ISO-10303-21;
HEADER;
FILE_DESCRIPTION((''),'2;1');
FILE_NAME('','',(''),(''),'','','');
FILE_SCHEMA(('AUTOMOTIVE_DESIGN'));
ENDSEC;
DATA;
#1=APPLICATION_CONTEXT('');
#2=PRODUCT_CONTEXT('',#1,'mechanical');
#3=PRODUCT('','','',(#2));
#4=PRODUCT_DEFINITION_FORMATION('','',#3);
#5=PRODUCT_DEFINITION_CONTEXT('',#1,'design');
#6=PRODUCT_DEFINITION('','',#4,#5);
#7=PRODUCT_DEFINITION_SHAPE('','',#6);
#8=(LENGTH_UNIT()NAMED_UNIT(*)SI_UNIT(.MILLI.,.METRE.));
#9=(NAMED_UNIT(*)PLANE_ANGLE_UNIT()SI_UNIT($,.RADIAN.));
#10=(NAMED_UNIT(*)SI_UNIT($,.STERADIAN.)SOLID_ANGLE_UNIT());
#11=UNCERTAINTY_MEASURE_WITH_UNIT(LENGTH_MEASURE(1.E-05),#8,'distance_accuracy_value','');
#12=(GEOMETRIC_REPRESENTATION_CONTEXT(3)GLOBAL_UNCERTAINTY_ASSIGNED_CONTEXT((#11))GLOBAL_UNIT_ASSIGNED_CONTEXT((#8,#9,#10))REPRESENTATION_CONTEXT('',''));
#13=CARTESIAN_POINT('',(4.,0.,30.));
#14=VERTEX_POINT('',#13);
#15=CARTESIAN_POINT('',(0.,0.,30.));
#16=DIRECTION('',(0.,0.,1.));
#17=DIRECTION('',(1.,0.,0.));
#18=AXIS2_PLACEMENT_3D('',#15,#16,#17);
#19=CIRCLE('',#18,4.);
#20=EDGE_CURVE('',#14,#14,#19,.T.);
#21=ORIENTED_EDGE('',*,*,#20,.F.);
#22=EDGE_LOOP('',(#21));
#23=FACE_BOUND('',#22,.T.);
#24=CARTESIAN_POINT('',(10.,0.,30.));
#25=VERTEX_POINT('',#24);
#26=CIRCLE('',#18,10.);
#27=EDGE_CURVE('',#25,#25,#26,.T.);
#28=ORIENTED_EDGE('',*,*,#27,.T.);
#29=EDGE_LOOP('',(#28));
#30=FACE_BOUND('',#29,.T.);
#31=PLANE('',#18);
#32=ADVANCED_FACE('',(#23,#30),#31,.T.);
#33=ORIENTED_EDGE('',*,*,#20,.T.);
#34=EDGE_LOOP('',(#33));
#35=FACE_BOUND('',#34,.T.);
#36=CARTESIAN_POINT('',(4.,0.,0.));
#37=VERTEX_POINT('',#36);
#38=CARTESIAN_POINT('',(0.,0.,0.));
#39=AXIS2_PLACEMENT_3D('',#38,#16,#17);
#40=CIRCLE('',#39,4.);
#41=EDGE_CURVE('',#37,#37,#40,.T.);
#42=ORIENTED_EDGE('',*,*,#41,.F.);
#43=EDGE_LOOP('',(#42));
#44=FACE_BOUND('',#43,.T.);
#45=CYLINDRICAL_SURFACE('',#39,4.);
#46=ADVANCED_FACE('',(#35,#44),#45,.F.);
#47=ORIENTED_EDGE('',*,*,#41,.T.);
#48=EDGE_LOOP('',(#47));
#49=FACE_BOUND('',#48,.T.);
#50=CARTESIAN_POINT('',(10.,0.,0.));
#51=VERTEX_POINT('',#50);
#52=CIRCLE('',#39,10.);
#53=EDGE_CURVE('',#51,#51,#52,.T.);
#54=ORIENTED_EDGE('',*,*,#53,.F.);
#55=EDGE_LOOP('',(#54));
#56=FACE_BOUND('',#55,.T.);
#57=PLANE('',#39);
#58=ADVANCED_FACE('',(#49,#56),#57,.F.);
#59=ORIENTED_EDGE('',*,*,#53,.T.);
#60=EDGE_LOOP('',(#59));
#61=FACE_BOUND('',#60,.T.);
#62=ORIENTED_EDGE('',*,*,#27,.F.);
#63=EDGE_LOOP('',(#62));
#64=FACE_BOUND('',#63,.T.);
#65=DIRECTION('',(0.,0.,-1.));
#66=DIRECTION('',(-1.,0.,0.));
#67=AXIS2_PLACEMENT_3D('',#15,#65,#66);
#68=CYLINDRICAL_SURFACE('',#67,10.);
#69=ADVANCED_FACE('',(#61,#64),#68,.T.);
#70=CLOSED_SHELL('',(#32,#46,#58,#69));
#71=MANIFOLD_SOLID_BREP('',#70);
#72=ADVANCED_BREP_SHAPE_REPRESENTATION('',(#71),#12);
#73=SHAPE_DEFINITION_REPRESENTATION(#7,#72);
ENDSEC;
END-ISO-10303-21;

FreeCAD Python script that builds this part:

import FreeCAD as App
import Part
import Sketcher

V = App.Vector
Q = App.Units.Quantity

doc = App.newDocument("Part")
params = doc.addObject("Spreadsheet::Sheet", "Params")
for row, (alias, value) in enumerate([
    ("sketch1_diameter", "20 mm"),
    ("pad1_length", "30 mm"),
    ("sketch2_diameter", "8 mm"),
    ("pocket1_length", "30 mm"),
], start=1):
    params.set(f"A{row}", alias)
    params.set(f"B{row}", "=" + value)
    params.setAlias(f"B{row}", alias)

body = doc.addObject("PartDesign::Body", "Body")

# Sketch on XY plane
sketch1 = body.newObject("Sketcher::SketchObject", "Sketch")
sketch1.AttachmentSupport = (doc.getObject("XY_Plane"), [""])
sketch1.MapMode = "FlatFace"
sketch1.addGeometry(Part.Circle(V(0, 0, 0), V(0, 0, 1), 10), False)
sketch1.addConstraint([
    Sketcher.Constraint("Coincident", 0, 3, -1, 1),
    Sketcher.Constraint("Diameter", 0, Q("20 mm")),
])
sketch1.setExpression("Constraints[1]", "Params.sketch1_diameter")
pad1 = body.newObject("PartDesign::Pad", "Pad")
pad1.Profile = sketch1
pad1.setExpression("Length", "Params.pad1_length")

# Sketch on XY plane
sketch2 = body.newObject("Sketcher::SketchObject", "Sketch001")
sketch2.AttachmentSupport = (doc.getObject("XY_Plane"), [""])
sketch2.MapMode = "FlatFace"
sketch2.AttachmentOffset = App.Placement(V(0, 0, 30), App.Rotation())
sketch2.addGeometry(Part.Circle(V(0, 0, 0), V(0, 0, 1), 4), False)
sketch2.addConstraint([
    Sketcher.Constraint("Coincident", 0, 3, -1, 1),
    Sketcher.Constraint("Diameter", 0, Q("8 mm")),
])
sketch2.setExpression("Constraints[1]", "Params.sketch2_diameter")
pocket1 = body.newObject("PartDesign::Pocket", "Pocket")
pocket1.Profile = sketch2
pocket1.setExpression("Length", "Params.pocket1_length")

doc.recompute()
